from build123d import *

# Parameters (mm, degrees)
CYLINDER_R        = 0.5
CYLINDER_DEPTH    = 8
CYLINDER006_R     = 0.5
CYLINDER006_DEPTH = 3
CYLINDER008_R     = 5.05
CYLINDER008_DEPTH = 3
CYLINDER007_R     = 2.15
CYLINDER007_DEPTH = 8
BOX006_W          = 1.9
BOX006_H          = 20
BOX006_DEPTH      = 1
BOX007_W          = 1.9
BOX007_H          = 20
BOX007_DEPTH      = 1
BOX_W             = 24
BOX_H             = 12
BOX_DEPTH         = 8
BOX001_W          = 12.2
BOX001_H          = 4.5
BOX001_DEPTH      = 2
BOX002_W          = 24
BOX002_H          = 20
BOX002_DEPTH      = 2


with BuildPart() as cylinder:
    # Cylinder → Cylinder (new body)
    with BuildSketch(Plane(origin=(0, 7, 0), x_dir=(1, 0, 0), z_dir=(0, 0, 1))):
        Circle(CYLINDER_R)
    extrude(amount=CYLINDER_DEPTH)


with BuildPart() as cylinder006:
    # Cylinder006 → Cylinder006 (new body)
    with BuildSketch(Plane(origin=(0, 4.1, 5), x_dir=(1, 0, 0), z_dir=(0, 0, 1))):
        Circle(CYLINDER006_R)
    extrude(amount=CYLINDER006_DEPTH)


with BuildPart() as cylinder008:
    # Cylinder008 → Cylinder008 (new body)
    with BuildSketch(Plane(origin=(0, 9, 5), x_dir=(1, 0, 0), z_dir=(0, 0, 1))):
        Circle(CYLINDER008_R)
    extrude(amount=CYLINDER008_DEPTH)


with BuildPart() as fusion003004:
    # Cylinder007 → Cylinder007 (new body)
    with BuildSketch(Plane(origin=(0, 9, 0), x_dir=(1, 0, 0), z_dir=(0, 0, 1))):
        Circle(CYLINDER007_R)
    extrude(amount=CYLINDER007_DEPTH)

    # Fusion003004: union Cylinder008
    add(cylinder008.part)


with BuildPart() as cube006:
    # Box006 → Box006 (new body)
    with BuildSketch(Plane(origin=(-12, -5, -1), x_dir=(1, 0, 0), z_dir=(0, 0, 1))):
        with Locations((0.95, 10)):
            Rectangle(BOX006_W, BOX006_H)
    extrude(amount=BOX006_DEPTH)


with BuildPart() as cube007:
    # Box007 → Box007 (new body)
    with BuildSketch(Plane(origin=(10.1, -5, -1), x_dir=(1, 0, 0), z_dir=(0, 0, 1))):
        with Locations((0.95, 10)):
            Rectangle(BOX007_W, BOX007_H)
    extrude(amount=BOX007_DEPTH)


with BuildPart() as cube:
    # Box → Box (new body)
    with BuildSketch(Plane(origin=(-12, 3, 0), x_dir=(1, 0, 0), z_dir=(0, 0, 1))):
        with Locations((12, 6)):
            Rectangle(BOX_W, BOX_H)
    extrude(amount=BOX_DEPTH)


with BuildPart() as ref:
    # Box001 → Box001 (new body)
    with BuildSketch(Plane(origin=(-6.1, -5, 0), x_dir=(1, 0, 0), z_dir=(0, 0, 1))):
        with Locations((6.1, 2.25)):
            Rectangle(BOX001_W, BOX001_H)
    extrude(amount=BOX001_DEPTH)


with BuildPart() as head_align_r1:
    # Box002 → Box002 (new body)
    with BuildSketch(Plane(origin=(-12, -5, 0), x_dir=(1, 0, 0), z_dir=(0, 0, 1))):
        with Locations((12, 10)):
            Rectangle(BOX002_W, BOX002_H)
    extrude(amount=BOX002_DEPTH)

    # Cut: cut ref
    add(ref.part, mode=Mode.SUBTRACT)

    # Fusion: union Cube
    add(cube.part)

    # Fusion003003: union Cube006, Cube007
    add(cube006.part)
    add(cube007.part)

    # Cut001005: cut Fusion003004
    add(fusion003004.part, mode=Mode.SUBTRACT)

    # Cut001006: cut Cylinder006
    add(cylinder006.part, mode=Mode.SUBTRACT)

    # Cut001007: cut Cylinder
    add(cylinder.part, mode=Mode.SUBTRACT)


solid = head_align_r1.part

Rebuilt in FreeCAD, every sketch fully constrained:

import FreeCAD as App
import Part
import Sketcher

V = App.Vector
Q = App.Units.Quantity


def add_polygon(sketch, points):
    """Adds a closed chain of lines whose ends are joined by coincident constraints."""
    first, n = sketch.GeometryCount, len(points)
    for a, b in zip(points, points[1:] + points[:1]):
        sketch.addGeometry(Part.LineSegment(App.Vector(*a, 0), App.Vector(*b, 0)), False)
    for i in range(n):
        sketch.addConstraint(Sketcher.Constraint("Coincident", first + i, 2, first + (i + 1) % n, 1))

doc = App.newDocument("Part")
body = doc.addObject("PartDesign::Body", "Body")

sketch1 = body.newObject("Sketcher::SketchObject", "Sketch")
sketch1.AttachmentSupport = (doc.getObject("XY_Plane"), [""])
sketch1.MapMode = "FlatFace"
sketch1.addGeometry(Part.Circle(V(0, 7, 0), V(0, 0, 1), 0.5), False)
sketch1.addConstraint([
    Sketcher.Constraint("PointOnObject", 0, 3, -2),
    Sketcher.Constraint("Diameter", 0, Q("1 mm")),
    Sketcher.Constraint("DistanceY", -1, 1, 0, 3, Q("7 mm")),
])
pad1 = body.newObject("PartDesign::Pad", "Pad")
pad1.Profile = sketch1
pad1.Length = 8
body2 = doc.addObject("PartDesign::Body", "Body001")

sketch2 = body2.newObject("Sketcher::SketchObject", "Sketch001")
sketch2.AttachmentSupport = (doc.getObject("XY_Plane001"), [""])
sketch2.MapMode = "FlatFace"
sketch2.AttachmentOffset = App.Placement(V(0, 0, 5), App.Rotation())
sketch2.addGeometry(Part.Circle(V(0, 4.1, 0), V(0, 0, 1), 0.5), False)
sketch2.addConstraint([
    Sketcher.Constraint("PointOnObject", 0, 3, -2),
    Sketcher.Constraint("Diameter", 0, Q("1 mm")),
    Sketcher.Constraint("DistanceY", -1, 1, 0, 3, Q("4.1 mm")),
])
pad2 = body2.newObject("PartDesign::Pad", "Pad001")
pad2.Profile = sketch2
pad2.Length = 3
body3 = doc.addObject("PartDesign::Body", "Body002")

sketch3 = body3.newObject("Sketcher::SketchObject", "Sketch002")
sketch3.AttachmentSupport = (doc.getObject("XY_Plane002"), [""])
sketch3.MapMode = "FlatFace"
sketch3.AttachmentOffset = App.Placement(V(0, 0, 5), App.Rotation())
sketch3.addGeometry(Part.Circle(V(0, 9, 0), V(0, 0, 1), 5.05), False)
sketch3.addConstraint([
    Sketcher.Constraint("PointOnObject", 0, 3, -2),
    Sketcher.Constraint("Diameter", 0, Q("10.1 mm")),
    Sketcher.Constraint("DistanceY", -1, 1, 0, 3, Q("9 mm")),
])
pad3 = body3.newObject("PartDesign::Pad", "Pad002")
pad3.Profile = sketch3
pad3.Length = 3
body4 = doc.addObject("PartDesign::Body", "Body003")

sketch4 = body4.newObject("Sketcher::SketchObject", "Sketch003")
sketch4.AttachmentSupport = (doc.getObject("XY_Plane003"), [""])
sketch4.MapMode = "FlatFace"
sketch4.addGeometry(Part.Circle(V(0, 9, 0), V(0, 0, 1), 2.15), False)
sketch4.addConstraint([
    Sketcher.Constraint("PointOnObject", 0, 3, -2),
    Sketcher.Constraint("Diameter", 0, Q("4.3 mm")),
    Sketcher.Constraint("DistanceY", -1, 1, 0, 3, Q("9 mm")),
])
pad4 = body4.newObject("PartDesign::Pad", "Pad003")
pad4.Profile = sketch4
pad4.Length = 8
doc.recompute()

boolean = body4.newObject("PartDesign::Boolean", "Boolean")
boolean.Type = "Fuse"
boolean.addObjects([body3])
body5 = doc.addObject("PartDesign::Body", "Body004")

sketch5 = body5.newObject("Sketcher::SketchObject", "Sketch004")
sketch5.AttachmentSupport = (doc.getObject("XY_Plane004"), [""])
sketch5.MapMode = "FlatFace"
sketch5.AttachmentOffset = App.Placement(V(0, 0, -1), App.Rotation())
add_polygon(sketch5, [(-12, 15), (-12, -5), (-10.1, -5), (-10.1, 15)])
sketch5.addConstraint([
    Sketcher.Constraint("Vertical", 0),
    Sketcher.Constraint("Horizontal", 1),
    Sketcher.Constraint("Vertical", 2),
    Sketcher.Constraint("Horizontal", 3),
    Sketcher.Constraint("DistanceY", 0, 2, 0, 1, Q("20 mm")),
    Sketcher.Constraint("DistanceX", 1, 1, 1, 2, Q("1.9 mm")),
    Sketcher.Constraint("DistanceX", 0, 2, -1, 1, Q("12 mm")),
    Sketcher.Constraint("DistanceY", 0, 2, -1, 1, Q("5 mm")),
])
pad5 = body5.newObject("PartDesign::Pad", "Pad004")
pad5.Profile = sketch5
pad5.Length = 1
body6 = doc.addObject("PartDesign::Body", "Body005")

sketch6 = body6.newObject("Sketcher::SketchObject", "Sketch005")
sketch6.AttachmentSupport = (doc.getObject("XY_Plane005"), [""])
sketch6.MapMode = "FlatFace"
sketch6.AttachmentOffset = App.Placement(V(0, 0, -1), App.Rotation())
add_polygon(sketch6, [(10.1, 15), (10.1, -5), (12, -5), (12, 15)])
sketch6.addConstraint([
    Sketcher.Constraint("Vertical", 0),
    Sketcher.Constraint("Horizontal", 1),
    Sketcher.Constraint("Vertical", 2),
    Sketcher.Constraint("Horizontal", 3),
    Sketcher.Constraint("DistanceY", 0, 2, 0, 1, Q("20 mm")),
    Sketcher.Constraint("DistanceX", 1, 1, 1, 2, Q("1.9 mm")),
    Sketcher.Constraint("DistanceY", 0, 2, -1, 1, Q("5 mm")),
    Sketcher.Constraint("DistanceX", -1, 1, 1, 2, Q("12 mm")),
])
pad6 = body6.newObject("PartDesign::Pad", "Pad005")
pad6.Profile = sketch6
pad6.Length = 1
body7 = doc.addObject("PartDesign::Body", "Body006")

sketch7 = body7.newObject("Sketcher::SketchObject", "Sketch006")
sketch7.AttachmentSupport = (doc.getObject("XY_Plane006"), [""])
sketch7.MapMode = "FlatFace"
add_polygon(sketch7, [(-12, 15), (-12, 3), (12, 3), (12, 15)])
sketch7.addConstraint([
    Sketcher.Constraint("Vertical", 0),
    Sketcher.Constraint("Horizontal", 1),
    Sketcher.Constraint("Vertical", 2),
    Sketcher.Constraint("Horizontal", 3),
    Sketcher.Constraint("DistanceX", 1, 1, 1, 2, Q("24 mm")),
    Sketcher.Constraint("DistanceY", 0, 2, 0, 1, Q("12 mm")),
    Sketcher.Constraint("DistanceX", 0, 2, -1, 1, Q("12 mm")),
    Sketcher.Constraint("DistanceY", -1, 1, 0, 2, Q("3 mm")),
])
pad7 = body7.newObject("PartDesign::Pad", "Pad006")
pad7.Profile = sketch7
pad7.Length = 8
body8 = doc.addObject("PartDesign::Body", "Body007")

sketch8 = body8.newObject("Sketcher::SketchObject", "Sketch007")
sketch8.AttachmentSupport = (doc.getObject("XY_Plane007"), [""])
sketch8.MapMode = "FlatFace"
add_polygon(sketch8, [(-6.1, -0.5), (-6.1, -5), (6.1, -5), (6.1, -0.5)])
sketch8.addConstraint([
    Sketcher.Constraint("Vertical", 0),
    Sketcher.Constraint("Horizontal", 1),
    Sketcher.Constraint("Vertical", 2),
    Sketcher.Constraint("Horizontal", 3),
    Sketcher.Constraint("DistanceX", 1, 1, 1, 2, Q("12.2 mm")),
    Sketcher.Constraint("DistanceY", 0, 2, 0, 1, Q("4.5 mm")),
    Sketcher.Constraint("DistanceY", 0, 2, -1, 1, Q("5 mm")),
    Sketcher.Constraint("DistanceX", 0, 2, -1, 1, Q("6.1 mm")),
])
pad8 = body8.newObject("PartDesign::Pad", "Pad007")
pad8.Profile = sketch8
pad8.Length = 2
body9 = doc.addObject("PartDesign::Body", "Body008")

sketch9 = body9.newObject("Sketcher::SketchObject", "Sketch008")
sketch9.AttachmentSupport = (doc.getObject("XY_Plane008"), [""])
sketch9.MapMode = "FlatFace"
add_polygon(sketch9, [(-12, 15), (-12, -5), (12, -5), (12, 15)])
sketch9.addConstraint([
    Sketcher.Constraint("Vertical", 0),
    Sketcher.Constraint("Horizontal", 1),
    Sketcher.Constraint("Vertical", 2),
    Sketcher.Constraint("Horizontal", 3),
    Sketcher.Constraint("DistanceX", 1, 1, 1, 2, Q("24 mm")),
    Sketcher.Constraint("DistanceY", 0, 2, 0, 1, Q("20 mm")),
    Sketcher.Constraint("DistanceX", 0, 2, -1, 1, Q("12 mm")),
    Sketcher.Constraint("DistanceY", 0, 2, -1, 1, Q("5 mm")),
])
pad9 = body9.newObject("PartDesign::Pad", "Pad008")
pad9.Profile = sketch9
pad9.Length = 2
doc.recompute()

boolean2 = body9.newObject("PartDesign::Boolean", "Boolean001")
boolean2.Type = "Cut"
boolean2.addObjects([body8])
doc.recompute()

boolean3 = body9.newObject("PartDesign::Boolean", "Boolean002")
boolean3.Type = "Fuse"
boolean3.addObjects([body7])
doc.recompute()

boolean4 = body9.newObject("PartDesign::Boolean", "Boolean003")
boolean4.Type = "Fuse"
boolean4.addObjects([body5])
doc.recompute()

boolean5 = body9.newObject("PartDesign::Boolean", "Boolean004")
boolean5.Type = "Fuse"
boolean5.addObjects([body6])
doc.recompute()

boolean6 = body9.newObject("PartDesign::Boolean", "Boolean005")
boolean6.Type = "Cut"
boolean6.addObjects([body4])
doc.recompute()

boolean7 = body9.newObject("PartDesign::Boolean", "Boolean006")
boolean7.Type = "Cut"
boolean7.addObjects([body2])
doc.recompute()

boolean8 = body9.newObject("PartDesign::Boolean", "Boolean007")
boolean8.Type = "Cut"
boolean8.addObjects([body])

doc.recompute()
